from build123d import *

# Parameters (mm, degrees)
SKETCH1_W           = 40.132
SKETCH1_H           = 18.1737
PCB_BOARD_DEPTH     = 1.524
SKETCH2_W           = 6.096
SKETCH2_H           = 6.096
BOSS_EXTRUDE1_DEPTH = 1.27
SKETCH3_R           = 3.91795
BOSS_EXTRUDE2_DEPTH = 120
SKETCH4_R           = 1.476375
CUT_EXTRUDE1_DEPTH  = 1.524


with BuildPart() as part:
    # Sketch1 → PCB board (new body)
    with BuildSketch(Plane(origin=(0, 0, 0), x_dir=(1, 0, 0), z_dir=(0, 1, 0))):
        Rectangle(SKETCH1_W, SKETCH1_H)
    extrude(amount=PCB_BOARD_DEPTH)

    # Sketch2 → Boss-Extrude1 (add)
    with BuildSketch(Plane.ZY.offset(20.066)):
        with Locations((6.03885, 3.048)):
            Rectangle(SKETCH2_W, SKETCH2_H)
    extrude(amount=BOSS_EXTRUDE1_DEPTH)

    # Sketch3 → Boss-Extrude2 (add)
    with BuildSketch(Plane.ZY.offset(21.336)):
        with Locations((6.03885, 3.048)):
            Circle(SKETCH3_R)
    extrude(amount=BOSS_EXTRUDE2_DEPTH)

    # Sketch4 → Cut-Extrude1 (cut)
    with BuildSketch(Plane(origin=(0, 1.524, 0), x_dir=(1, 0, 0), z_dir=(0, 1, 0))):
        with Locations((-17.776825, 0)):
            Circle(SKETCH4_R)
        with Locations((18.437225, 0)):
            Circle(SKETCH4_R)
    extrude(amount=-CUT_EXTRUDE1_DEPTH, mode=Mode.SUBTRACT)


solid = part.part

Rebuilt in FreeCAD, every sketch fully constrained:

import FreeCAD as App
import Part
import Sketcher

V = App.Vector
Q = App.Units.Quantity

doc = App.newDocument("Part")
params = doc.addObject("Spreadsheet::Sheet", "Params")
for row, (alias, value) in enumerate([
    ("sketch1_width", "1.58 in"),
    ("pad1_length", "0.06 in"),
    ("sketch2_width", "0.24 in"),
    ("pad2_length", "0.05 in"),
    ("pad3_length", "120 mm"),
    ("pocket1_length", "0.06 in"),
], start=1):
    params.set(f"A{row}", alias)
    params.set(f"B{row}", "=" + value)
    params.setAlias(f"B{row}", alias)

body = doc.addObject("PartDesign::Body", "Body")

sketch1 = doc.addObject("Sketcher::SketchObject", "Sketch")
body.addObject(sketch1)
sketch1.AttachmentSupport = (doc.XZ_Plane, [""])
sketch1.MapMode = "FlatFace"
sketch1.addGeometry(Part.LineSegment(V(-20, -9, 0), V(-20, 9, 0)), False)
sketch1.addGeometry(Part.LineSegment(V(-20, 9, 0), V(20, 9, 0)), False)
sketch1.addGeometry(Part.LineSegment(V(20, 9, 0), V(20, -9, 0)), False)
sketch1.addGeometry(Part.LineSegment(V(20, -9, 0), V(-20, -9, 0)), False)
sketch1.addConstraint(Sketcher.Constraint("Coincident", 0, 2, 1, 1))
sketch1.addConstraint(Sketcher.Constraint("Coincident", 1, 2, 2, 1))
sketch1.addConstraint(Sketcher.Constraint("Coincident", 2, 2, 3, 1))
sketch1.addConstraint(Sketcher.Constraint("Coincident", 3, 2, 0, 1))
sketch1.addConstraint(Sketcher.Constraint("Vertical", 0))
sketch1.addConstraint(Sketcher.Constraint("Horizontal", 1))
sketch1.addConstraint(Sketcher.Constraint("Vertical", 2))
sketch1.addConstraint(Sketcher.Constraint("Horizontal", 3))
sketch1.addConstraint(Sketcher.Constraint("Symmetric", 0, 2, 2, 2, -1, 1))
sketch1.addConstraint(Sketcher.Constraint("DistanceX", 1, 1, 1, 2, Q("1.58 in")))
sketch1.addConstraint(Sketcher.Constraint("DistanceY", 0, 1, 0, 2, Q("0.7155 in")))
sketch1.setExpression("Constraints[9]", "Params.sketch1_width")
pad1 = doc.addObject("PartDesign::Pad", "Pad")
body.addObject(pad1)
pad1.Profile = sketch1
pad1.setExpression("Length", "Params.pad1_length")
pad1.Reversed = True

sketch2 = doc.addObject("Sketcher::SketchObject", "Sketch001")
body.addObject(sketch2)
sketch2.AttachmentSupport = (doc.YZ_Plane, [""])
sketch2.MapMode = "FlatFace"
sketch2.AttachmentOffset = App.Placement(V(0, 0, -0.79 * 25.4), App.Rotation())
sketch2.addGeometry(Part.LineSegment(V(6, 3, 0), V(0, 3, 0)), False)
sketch2.addGeometry(Part.LineSegment(V(0, 3, 0), V(0, 9, 0)), False)
sketch2.addGeometry(Part.LineSegment(V(0, 9, 0), V(6, 9, 0)), False)
sketch2.addGeometry(Part.LineSegment(V(6, 9, 0), V(6, 3, 0)), False)
sketch2.addConstraint(Sketcher.Constraint("Coincident", 0, 2, 1, 1))
sketch2.addConstraint(Sketcher.Constraint("Coincident", 1, 2, 2, 1))
sketch2.addConstraint(Sketcher.Constraint("Coincident", 2, 2, 3, 1))
sketch2.addConstraint(Sketcher.Constraint("Coincident", 3, 2, 0, 1))
sketch2.addConstraint(Sketcher.Constraint("Horizontal", 0))
sketch2.addConstraint(Sketcher.Constraint("Vertical", 1))
sketch2.addConstraint(Sketcher.Constraint("Horizontal", 2))
sketch2.addConstraint(Sketcher.Constraint("Vertical", 3))
sketch2.addConstraint(Sketcher.Constraint("PointOnObject", 0, 2, -2))
sketch2.addConstraint(Sketcher.Constraint("Equal", 2, 1))
sketch2.addConstraint(Sketcher.Constraint("DistanceX", 0, 2, 0, 1, Q("0.24 in")))
sketch2.addConstraint(Sketcher.Constraint("DistanceY", -1, 1, 0, 2, 2.99085))
sketch2.setExpression("Constraints[10]", "Params.sketch2_width")
pad2 = doc.addObject("PartDesign::Pad", "Pad001")
body.addObject(pad2)
pad2.Profile = sketch2
pad2.setExpression("Length", "Params.pad2_length")
pad2.Reversed = True

sketch3 = doc.addObject("Sketcher::SketchObject", "Sketch002")
body.addObject(sketch3)
sketch3.AttachmentSupport = (doc.YZ_Plane, [""])
sketch3.MapMode = "FlatFace"
sketch3.AttachmentOffset = App.Placement(V(0, 0, -0.84 * 25.4), App.Rotation())
sketch3.addGeometry(Part.Circle(V(3, 6, 0), V(0, 0, 1), 3.9), False)
sketch3.addConstraint(Sketcher.Constraint("Diameter", 0, Q("0.3085 in")))
sketch3.addConstraint(Sketcher.Constraint("DistanceX", -1, 1, 0, 3, Q("0.12 in")))
sketch3.addConstraint(Sketcher.Constraint("DistanceY", -1, 1, 0, 3, 6.03885))
pad3 = doc.addObject("PartDesign::Pad", "Pad002")
body.addObject(pad3)
pad3.Profile = sketch3
pad3.setExpression("Length", "Params.pad3_length")
pad3.Reversed = True

sketch4 = doc.addObject("Sketcher::SketchObject", "Sketch003")
body.addObject(sketch4)
sketch4.AttachmentSupport = (doc.XZ_Plane, [""])
sketch4.MapMode = "FlatFace"
sketch4.AttachmentOffset = App.Placement(V(0, 0, -0.06 * 25.4), App.Rotation())
sketch4.addGeometry(Part.Circle(V(-17.8, 0, 0), V(0, 0, 1), 1.5), False)
sketch4.addGeometry(Part.Circle(V(18.4, 0, 0), V(0, 0, 1), 1.5), False)
sketch4.addConstraint(Sketcher.Constraint("Equal", 0, 1))
sketch4.addConstraint(Sketcher.Constraint("PointOnObject", 0, 3, -1))
sketch4.addConstraint(Sketcher.Constraint("PointOnObject", 1, 3, -1))
sketch4.addConstraint(Sketcher.Constraint("Diameter", 0, 2.95275))
sketch4.addConstraint(Sketcher.Constraint("DistanceX", 0, 3, 1, 3, 36.21405))
sketch4.addConstraint(Sketcher.Constraint("DistanceX", 0, 3, -1, 1, 17.776825))
pocket1 = doc.addObject("PartDesign::Pocket", "Pocket")
body.addObject(pocket1)
pocket1.Profile = sketch4
pocket1.setExpression("Length", "Params.pocket1_length")
pocket1.Reversed = True

doc.recompute()
